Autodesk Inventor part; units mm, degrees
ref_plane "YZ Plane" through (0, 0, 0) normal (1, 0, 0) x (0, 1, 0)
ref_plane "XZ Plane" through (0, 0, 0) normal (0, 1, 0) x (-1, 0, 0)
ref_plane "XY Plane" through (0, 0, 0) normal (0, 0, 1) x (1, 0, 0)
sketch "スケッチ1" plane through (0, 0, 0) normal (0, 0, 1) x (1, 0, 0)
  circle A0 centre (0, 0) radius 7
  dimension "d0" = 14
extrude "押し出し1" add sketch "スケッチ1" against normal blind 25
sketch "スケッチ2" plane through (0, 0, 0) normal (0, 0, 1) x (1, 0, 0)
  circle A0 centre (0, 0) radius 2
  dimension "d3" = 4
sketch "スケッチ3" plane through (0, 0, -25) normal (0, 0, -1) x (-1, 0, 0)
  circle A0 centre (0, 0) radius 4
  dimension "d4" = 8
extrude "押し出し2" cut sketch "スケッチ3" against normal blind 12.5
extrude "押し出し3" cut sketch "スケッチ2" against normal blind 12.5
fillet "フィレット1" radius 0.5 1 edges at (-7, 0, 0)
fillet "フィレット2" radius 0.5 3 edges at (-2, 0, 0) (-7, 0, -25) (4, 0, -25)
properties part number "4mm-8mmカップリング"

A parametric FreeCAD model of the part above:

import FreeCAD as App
import Part
import Sketcher


def edges_at(feature, points):
    """Names of the edges that pass closest to the given points."""
    edges = feature.Shape.Edges
    near = lambda p: min(range(len(edges)), key=lambda i: edges[i].distToShape(Part.Vertex(*p))[0])
    return sorted({f"Edge{near(p) + 1}" for p in points})

doc = App.newDocument("Part")
body = doc.addObject("PartDesign::Body", "Body")

# Sketch on XY plane
sketch1 = body.newObject("Sketcher::SketchObject", "Sketch")
sketch1.AttachmentSupport = (doc.getObject("XY_Plane"), [""])
sketch1.MapMode = "FlatFace"
sketch1.addGeometry(Part.Circle(App.Vector(0, 0, 0), App.Vector(0, 0, 1), 7), False)
sketch1.addConstraint([
    Sketcher.Constraint("Coincident", 0, 3, -1, 1),
    Sketcher.Constraint("Diameter", 0, 14.0),
])
pad1 = body.newObject("PartDesign::Pad", "Pad")
pad1.Profile = sketch1
pad1.Length = 25
pad1.Reversed = True

# Sketch on XY plane
sketch2 = body.newObject("Sketcher::SketchObject", "Sketch001")
sketch2.AttachmentSupport = (doc.getObject("XY_Plane"), [""])
sketch2.MapMode = "FlatFace"
sketch2.AttachmentOffset = App.Placement(App.Vector(0, 0, -25), App.Rotation())
sketch2.addGeometry(Part.Circle(App.Vector(0, 0, 0), App.Vector(0, 0, 1), 4), False)
sketch2.addConstraint([
    Sketcher.Constraint("Coincident", 0, 3, -1, 1),
    Sketcher.Constraint("Diameter", 0, 8.0),
])
pocket1 = body.newObject("PartDesign::Pocket", "Pocket")
pocket1.Profile = sketch2
pocket1.Length = 12.5
pocket1.Reversed = True

# Sketch on XY plane
sketch3 = body.newObject("Sketcher::SketchObject", "Sketch002")
sketch3.AttachmentSupport = (doc.getObject("XY_Plane"), [""])
sketch3.MapMode = "FlatFace"
sketch3.addGeometry(Part.Circle(App.Vector(0, 0, 0), App.Vector(0, 0, 1), 2), False)
sketch3.addConstraint([
    Sketcher.Constraint("Coincident", 0, 3, -1, 1),
    Sketcher.Constraint("Diameter", 0, 4.0),
])
pocket2 = body.newObject("PartDesign::Pocket", "Pocket001")
pocket2.Profile = sketch3
pocket2.Length = 12.5
doc.recompute()

fillet = body.newObject("PartDesign::Fillet", "Fillet")
fillet.Base = (pocket2, edges_at(pocket2, [(-7, 0, 0)]))
fillet.Radius = 0.5
doc.recompute()

fillet2 = body.newObject("PartDesign::Fillet", "Fillet001")
fillet2.Base = (fillet, edges_at(fillet, [(-2, 0, 0), (-7, 0, -25), (4, 0, -25)]))
fillet2.Radius = 0.5

doc.recompute()
